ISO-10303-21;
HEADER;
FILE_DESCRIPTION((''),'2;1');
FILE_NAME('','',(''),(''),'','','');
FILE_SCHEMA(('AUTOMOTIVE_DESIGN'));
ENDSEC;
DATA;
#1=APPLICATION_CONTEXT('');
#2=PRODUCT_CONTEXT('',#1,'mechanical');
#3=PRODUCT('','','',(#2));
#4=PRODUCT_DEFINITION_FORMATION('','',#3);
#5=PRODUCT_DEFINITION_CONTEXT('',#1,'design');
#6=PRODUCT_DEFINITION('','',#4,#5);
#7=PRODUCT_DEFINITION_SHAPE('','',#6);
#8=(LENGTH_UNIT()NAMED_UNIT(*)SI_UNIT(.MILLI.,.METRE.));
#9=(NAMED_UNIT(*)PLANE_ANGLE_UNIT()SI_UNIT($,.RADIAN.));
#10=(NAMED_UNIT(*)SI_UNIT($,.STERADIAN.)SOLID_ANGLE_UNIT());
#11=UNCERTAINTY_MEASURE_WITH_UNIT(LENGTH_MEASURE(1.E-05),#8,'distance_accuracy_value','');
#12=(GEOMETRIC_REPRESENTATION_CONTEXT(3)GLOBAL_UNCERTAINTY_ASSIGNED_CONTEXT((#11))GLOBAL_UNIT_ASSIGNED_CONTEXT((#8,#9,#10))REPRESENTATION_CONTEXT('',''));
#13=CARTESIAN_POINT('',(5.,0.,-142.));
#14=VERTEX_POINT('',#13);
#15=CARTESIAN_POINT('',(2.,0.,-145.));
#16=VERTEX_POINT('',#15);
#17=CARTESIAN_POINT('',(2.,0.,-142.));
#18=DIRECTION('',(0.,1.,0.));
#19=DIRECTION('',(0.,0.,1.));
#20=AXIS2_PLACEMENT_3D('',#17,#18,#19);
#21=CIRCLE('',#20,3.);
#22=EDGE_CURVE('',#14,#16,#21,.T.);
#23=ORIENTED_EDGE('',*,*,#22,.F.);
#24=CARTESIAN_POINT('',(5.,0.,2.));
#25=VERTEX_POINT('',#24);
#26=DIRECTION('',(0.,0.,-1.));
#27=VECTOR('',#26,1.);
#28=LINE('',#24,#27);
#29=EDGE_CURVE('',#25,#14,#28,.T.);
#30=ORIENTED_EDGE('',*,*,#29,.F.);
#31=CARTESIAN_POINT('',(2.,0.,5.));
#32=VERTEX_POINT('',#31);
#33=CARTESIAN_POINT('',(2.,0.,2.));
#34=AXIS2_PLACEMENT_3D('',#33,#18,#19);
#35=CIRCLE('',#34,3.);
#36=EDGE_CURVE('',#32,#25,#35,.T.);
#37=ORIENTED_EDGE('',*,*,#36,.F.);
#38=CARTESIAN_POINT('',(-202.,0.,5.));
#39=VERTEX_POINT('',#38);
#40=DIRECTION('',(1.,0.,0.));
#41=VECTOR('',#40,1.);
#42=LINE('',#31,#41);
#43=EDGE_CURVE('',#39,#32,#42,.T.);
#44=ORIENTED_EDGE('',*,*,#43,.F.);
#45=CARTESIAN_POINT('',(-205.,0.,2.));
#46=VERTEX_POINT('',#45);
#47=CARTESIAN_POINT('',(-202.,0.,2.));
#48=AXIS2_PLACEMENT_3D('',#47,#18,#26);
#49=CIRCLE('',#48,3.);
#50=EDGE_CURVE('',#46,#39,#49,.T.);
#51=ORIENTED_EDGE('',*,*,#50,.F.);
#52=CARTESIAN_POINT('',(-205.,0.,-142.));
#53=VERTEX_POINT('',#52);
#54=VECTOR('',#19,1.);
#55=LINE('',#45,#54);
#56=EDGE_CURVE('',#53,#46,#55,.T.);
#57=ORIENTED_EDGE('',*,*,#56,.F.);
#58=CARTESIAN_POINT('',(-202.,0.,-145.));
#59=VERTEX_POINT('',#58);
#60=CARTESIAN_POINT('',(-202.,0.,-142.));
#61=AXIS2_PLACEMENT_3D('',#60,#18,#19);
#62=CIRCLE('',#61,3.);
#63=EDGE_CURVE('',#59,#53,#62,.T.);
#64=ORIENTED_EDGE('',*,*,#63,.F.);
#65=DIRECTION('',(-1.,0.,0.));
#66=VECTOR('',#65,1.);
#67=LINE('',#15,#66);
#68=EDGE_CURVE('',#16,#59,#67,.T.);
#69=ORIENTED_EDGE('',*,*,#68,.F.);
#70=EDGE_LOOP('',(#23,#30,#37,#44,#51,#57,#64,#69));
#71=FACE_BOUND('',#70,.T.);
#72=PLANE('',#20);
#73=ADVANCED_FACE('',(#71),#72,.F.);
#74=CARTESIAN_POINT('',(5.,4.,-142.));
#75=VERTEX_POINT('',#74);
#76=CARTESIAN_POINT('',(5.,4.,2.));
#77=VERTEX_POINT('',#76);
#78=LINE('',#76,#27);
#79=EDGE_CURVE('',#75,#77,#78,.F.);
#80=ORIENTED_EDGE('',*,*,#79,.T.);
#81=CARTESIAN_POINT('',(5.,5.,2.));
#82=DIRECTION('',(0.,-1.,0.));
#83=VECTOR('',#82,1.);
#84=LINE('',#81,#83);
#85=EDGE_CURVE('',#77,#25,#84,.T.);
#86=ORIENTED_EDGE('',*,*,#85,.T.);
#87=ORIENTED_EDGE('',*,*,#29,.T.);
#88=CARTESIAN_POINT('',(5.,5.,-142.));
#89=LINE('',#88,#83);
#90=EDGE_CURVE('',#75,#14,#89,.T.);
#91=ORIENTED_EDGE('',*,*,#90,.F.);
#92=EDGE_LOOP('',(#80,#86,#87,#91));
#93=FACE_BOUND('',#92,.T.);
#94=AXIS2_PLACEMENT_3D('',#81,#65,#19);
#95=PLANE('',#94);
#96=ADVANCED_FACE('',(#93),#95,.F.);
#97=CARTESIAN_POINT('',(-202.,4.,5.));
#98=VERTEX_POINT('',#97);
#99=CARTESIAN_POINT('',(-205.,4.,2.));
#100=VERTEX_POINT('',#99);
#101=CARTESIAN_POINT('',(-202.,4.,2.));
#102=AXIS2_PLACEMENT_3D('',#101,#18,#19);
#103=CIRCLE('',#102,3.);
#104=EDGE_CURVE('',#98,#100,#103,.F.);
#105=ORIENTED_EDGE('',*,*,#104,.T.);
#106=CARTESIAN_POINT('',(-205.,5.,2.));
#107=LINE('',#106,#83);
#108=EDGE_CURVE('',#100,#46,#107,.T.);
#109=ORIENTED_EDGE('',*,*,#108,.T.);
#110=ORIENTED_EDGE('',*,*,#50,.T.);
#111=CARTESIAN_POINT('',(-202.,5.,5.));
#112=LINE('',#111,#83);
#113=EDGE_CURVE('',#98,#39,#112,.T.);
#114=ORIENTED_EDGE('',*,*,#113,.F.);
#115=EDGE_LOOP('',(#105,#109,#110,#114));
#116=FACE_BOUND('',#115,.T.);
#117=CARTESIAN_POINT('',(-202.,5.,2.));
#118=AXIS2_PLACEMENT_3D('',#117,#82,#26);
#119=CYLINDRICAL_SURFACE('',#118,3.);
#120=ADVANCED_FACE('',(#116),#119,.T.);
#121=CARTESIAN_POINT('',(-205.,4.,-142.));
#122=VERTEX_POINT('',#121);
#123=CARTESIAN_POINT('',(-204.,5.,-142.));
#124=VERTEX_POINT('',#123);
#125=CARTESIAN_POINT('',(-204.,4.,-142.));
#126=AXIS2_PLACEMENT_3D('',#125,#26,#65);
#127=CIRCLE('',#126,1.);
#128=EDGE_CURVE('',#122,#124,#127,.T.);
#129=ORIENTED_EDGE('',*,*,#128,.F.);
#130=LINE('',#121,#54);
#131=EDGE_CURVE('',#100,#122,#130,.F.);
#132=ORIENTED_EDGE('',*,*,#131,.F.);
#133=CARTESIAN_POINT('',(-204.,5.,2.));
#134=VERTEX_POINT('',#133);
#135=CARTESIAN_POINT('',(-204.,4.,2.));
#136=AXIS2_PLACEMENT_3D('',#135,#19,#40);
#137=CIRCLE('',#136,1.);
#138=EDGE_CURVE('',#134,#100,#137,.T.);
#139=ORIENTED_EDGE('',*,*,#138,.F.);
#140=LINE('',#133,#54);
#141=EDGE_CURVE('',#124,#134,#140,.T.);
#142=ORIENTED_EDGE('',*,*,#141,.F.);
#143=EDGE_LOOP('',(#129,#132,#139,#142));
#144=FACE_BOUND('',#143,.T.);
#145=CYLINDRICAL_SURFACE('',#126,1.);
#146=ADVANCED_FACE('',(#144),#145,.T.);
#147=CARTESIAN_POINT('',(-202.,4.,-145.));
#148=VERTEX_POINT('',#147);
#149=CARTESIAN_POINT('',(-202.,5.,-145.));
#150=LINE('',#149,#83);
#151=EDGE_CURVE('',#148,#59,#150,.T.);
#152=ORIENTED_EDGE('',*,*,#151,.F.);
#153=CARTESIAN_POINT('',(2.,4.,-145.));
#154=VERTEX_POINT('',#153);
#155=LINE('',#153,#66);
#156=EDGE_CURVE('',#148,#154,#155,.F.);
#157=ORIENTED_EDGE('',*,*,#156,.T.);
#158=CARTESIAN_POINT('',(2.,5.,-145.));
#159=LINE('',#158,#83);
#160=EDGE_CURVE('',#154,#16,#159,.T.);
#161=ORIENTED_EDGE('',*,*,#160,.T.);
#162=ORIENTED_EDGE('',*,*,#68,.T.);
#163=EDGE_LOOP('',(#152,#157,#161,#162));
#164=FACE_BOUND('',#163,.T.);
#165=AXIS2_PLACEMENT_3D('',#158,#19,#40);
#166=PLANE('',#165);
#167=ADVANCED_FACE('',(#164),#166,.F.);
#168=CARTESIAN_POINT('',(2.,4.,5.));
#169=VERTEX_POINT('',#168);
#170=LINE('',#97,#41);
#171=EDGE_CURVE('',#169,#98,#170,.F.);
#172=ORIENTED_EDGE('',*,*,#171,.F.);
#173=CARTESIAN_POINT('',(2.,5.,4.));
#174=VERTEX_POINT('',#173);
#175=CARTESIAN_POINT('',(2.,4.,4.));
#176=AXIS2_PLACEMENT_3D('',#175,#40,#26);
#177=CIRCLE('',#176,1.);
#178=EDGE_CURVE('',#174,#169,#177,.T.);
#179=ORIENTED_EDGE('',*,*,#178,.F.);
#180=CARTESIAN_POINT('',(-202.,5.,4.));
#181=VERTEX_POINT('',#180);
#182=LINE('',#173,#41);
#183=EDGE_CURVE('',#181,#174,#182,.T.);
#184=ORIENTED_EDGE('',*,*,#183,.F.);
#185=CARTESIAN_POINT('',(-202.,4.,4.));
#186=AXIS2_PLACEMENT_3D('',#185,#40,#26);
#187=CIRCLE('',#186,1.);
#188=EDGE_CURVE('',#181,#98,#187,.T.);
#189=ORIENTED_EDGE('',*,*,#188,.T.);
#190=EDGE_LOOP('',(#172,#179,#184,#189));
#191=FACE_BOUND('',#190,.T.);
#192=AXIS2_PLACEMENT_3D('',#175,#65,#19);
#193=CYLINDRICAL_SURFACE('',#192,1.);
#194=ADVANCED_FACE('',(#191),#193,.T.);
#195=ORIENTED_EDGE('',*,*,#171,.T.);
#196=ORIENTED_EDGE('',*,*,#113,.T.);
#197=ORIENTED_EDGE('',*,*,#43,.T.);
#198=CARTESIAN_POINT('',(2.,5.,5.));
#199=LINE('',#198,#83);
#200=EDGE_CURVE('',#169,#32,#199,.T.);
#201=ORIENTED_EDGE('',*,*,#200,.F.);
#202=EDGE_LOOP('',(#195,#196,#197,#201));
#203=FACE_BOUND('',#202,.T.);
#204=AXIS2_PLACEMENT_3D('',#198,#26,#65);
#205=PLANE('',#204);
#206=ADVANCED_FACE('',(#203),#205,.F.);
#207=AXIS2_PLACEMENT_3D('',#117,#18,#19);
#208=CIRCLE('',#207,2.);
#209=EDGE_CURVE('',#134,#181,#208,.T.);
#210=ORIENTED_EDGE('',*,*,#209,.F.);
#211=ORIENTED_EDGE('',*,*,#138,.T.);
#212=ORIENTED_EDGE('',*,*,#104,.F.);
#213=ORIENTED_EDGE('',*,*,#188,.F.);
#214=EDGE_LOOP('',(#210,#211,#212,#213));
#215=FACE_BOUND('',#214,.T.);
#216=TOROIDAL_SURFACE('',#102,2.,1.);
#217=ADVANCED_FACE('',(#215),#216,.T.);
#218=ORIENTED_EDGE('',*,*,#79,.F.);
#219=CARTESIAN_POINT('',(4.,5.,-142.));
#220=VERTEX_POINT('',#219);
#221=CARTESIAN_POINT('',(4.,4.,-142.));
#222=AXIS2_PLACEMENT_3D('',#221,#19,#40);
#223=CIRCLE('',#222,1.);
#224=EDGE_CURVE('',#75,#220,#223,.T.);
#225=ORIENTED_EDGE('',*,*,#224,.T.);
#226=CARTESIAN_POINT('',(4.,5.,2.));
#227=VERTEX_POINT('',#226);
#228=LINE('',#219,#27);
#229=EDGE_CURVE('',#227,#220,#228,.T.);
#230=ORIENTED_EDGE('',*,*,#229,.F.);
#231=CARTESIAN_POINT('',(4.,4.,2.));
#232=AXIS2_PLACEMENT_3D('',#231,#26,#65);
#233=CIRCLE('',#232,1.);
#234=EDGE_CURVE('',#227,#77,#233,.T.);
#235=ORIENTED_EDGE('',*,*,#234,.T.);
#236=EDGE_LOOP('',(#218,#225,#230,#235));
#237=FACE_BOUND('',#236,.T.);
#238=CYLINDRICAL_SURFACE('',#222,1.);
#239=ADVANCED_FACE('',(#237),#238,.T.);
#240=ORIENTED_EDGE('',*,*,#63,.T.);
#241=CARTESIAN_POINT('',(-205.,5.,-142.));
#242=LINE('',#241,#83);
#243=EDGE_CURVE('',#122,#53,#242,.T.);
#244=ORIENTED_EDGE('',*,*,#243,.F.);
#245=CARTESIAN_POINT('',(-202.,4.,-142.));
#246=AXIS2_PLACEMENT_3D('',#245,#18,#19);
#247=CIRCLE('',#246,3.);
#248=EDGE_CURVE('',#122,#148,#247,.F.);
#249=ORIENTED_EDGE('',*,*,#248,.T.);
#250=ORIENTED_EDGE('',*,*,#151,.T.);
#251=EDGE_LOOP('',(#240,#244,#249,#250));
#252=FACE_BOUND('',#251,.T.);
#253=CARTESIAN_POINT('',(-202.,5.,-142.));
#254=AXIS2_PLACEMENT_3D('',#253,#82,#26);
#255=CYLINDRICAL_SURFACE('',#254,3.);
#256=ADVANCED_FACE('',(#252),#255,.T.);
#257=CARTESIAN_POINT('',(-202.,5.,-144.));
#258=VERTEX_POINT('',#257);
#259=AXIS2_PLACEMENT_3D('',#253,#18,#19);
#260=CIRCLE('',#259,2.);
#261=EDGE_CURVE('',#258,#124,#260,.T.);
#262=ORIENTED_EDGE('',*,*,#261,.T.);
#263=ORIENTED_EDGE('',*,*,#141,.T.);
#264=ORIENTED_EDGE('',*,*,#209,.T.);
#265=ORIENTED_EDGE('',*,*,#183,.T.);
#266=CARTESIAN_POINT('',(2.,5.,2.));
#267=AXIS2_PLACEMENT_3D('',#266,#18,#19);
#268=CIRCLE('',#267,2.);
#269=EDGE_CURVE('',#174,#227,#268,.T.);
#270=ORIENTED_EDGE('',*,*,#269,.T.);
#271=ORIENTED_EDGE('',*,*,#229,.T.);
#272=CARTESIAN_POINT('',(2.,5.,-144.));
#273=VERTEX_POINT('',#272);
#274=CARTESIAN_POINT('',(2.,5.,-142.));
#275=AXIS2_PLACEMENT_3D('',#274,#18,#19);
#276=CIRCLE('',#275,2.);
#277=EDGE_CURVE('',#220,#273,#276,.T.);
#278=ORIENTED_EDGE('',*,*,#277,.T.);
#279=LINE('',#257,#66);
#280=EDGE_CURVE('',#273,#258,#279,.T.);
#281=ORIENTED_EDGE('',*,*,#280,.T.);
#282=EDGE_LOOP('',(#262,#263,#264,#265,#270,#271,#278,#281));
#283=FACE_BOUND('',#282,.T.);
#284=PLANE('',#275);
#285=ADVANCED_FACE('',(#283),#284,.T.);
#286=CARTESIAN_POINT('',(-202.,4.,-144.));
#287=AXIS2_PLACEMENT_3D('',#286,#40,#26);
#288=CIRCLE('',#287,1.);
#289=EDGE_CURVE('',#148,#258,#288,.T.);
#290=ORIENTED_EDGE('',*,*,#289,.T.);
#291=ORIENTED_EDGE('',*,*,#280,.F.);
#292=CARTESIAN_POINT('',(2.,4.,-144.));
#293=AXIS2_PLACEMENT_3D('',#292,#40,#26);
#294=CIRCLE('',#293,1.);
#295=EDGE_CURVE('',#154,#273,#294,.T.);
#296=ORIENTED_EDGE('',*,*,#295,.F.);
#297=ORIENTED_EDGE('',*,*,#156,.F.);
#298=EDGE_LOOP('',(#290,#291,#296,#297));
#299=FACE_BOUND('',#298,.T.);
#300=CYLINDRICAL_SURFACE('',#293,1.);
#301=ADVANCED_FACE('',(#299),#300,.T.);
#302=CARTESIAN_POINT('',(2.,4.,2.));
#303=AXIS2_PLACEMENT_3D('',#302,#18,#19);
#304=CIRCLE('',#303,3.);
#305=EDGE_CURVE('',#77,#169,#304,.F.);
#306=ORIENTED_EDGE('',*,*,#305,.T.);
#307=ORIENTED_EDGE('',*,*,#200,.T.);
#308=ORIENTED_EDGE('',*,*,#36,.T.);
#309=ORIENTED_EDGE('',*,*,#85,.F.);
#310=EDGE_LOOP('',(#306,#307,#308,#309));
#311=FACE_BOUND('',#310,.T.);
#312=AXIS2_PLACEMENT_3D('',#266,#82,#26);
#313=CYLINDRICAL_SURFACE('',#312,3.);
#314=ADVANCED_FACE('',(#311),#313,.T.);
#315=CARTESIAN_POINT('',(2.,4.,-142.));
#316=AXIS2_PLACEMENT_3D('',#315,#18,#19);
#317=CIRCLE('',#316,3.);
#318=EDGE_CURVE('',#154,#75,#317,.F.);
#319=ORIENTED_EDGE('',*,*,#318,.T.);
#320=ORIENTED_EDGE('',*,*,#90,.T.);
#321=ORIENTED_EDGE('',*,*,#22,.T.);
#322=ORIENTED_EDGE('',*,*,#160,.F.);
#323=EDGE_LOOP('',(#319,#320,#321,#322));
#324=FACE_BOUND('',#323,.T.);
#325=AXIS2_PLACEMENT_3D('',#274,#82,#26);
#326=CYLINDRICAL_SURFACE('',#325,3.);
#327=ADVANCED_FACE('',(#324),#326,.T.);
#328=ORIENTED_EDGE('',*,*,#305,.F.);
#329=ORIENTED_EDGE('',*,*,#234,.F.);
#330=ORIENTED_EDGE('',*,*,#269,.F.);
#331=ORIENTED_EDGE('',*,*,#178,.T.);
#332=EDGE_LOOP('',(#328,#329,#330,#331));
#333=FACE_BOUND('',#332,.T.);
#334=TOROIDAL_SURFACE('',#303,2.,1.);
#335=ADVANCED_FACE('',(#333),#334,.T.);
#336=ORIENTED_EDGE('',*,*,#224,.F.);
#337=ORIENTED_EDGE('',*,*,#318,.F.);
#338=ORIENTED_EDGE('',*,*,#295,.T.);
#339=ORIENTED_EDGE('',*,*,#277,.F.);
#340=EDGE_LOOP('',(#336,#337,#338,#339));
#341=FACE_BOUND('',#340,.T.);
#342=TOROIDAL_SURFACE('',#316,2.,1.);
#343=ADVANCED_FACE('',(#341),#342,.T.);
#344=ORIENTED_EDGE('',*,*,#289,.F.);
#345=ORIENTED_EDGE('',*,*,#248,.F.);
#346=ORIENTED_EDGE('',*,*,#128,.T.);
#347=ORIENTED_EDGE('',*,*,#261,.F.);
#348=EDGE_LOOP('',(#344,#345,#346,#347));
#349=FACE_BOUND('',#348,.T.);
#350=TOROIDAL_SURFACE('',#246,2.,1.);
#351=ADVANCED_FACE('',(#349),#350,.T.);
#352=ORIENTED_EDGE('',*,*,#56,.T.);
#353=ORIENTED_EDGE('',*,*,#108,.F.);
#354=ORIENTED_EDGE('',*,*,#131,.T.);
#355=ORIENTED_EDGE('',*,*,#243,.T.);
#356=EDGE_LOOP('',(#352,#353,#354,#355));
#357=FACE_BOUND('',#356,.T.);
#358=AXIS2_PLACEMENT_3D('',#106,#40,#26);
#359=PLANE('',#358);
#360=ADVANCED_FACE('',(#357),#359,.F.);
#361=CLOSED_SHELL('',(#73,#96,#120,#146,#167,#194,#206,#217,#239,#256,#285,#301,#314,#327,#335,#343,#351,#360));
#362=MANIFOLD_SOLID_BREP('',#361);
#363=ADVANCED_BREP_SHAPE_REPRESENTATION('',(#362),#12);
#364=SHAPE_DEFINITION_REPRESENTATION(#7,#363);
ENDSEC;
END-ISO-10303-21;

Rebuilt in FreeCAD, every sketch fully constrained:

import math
import FreeCAD as App
import Part
import Sketcher

V = App.Vector


def edges_at(feature, points):
    """Names of the edges that pass closest to the given points."""
    edges = feature.Shape.Edges
    near = lambda p: min(range(len(edges)), key=lambda i: edges[i].distToShape(Part.Vertex(*p))[0])
    return sorted({f"Edge{near(p) + 1}" for p in points})

doc = App.newDocument("Part")
body = doc.addObject("PartDesign::Body", "Body")

# Sketch on XZ plane
sketch1 = body.newObject("Sketcher::SketchObject", "Sketch")
sketch1.AttachmentSupport = (doc.getObject("XZ_Plane"), [""])
sketch1.MapMode = "FlatFace"
sketch1.addGeometry([
    Part.LineSegment(V(-202, 5, 0), V(2, 5, 0)),  # 0
    Part.ArcOfCircle(Part.Circle(V(2, 2, 0), V(0, 0, 1), 3), math.radians(0), math.radians(90)),  # 1
    Part.LineSegment(V(5, 2, 0), V(5, -142, 0)),  # 2
    Part.ArcOfCircle(Part.Circle(V(2, -142, 0), V(0, 0, 1), 3), math.radians(-90), math.radians(0)),  # 3
    Part.LineSegment(V(2, -145, 0), V(-202, -145, 0)),  # 4
    Part.ArcOfCircle(Part.Circle(V(-202, -142, 0), V(0, 0, 1), 3), math.radians(180), math.radians(270)),  # 5
    Part.LineSegment(V(-205, -142, 0), V(-205, 2, 0)),  # 6
    Part.ArcOfCircle(Part.Circle(V(-202, 2, 0), V(0, 0, 1), 3), math.radians(90), math.radians(180)),  # 7
], False)
sketch1.addConstraint([
    Sketcher.Constraint("Tangent", 0, 2, 1, 2),
    Sketcher.Constraint("Tangent", 1, 1, 2, 1),
    Sketcher.Constraint("Tangent", 2, 2, 3, 2),
    Sketcher.Constraint("Tangent", 3, 1, 4, 1),
    Sketcher.Constraint("Tangent", 4, 2, 5, 2),
    Sketcher.Constraint("Tangent", 5, 1, 6, 1),
    Sketcher.Constraint("Tangent", 6, 2, 7, 2),
    Sketcher.Constraint("Tangent", 7, 1, 0, 1),
    Sketcher.Constraint("Horizontal", 0),
    Sketcher.Constraint("Vertical", 2),
    Sketcher.Constraint("Horizontal", 4),
    Sketcher.Constraint("Vertical", 6),
    Sketcher.Constraint("Equal", 1, 3),
    Sketcher.Constraint("Equal", 3, 5),
    Sketcher.Constraint("Equal", 5, 7),
    Sketcher.Constraint("Radius", 1, 3.0),
    Sketcher.Constraint("DistanceX", 0, 1, 0, 2, 204.0),
    Sketcher.Constraint("DistanceY", 2, 2, 2, 1, 144.0),
    Sketcher.Constraint("DistanceX", -1, 1, 1, 3, 2.0),
    Sketcher.Constraint("DistanceY", -1, 1, 1, 3, 2.0),
])
pad1 = body.newObject("PartDesign::Pad", "Pad")
pad1.Profile = sketch1
pad1.Length = 5
pad1.Reversed = True
doc.recompute()

fillet = body.newObject("PartDesign::Fillet", "Fillet")
fillet.Base = (pad1, edges_at(pad1, [
    (-204.121, 5, -144.121),
    (-205, 5, -70),
    (-204.121, 5, 4.121),
    (-100, 5, 5),
    (4.121, 5, 4.121),
    (5, 5, -70),
    (4.121, 5, -144.121),
    (-100, 5, -145),
]))
fillet.Radius = 1

doc.recompute()
